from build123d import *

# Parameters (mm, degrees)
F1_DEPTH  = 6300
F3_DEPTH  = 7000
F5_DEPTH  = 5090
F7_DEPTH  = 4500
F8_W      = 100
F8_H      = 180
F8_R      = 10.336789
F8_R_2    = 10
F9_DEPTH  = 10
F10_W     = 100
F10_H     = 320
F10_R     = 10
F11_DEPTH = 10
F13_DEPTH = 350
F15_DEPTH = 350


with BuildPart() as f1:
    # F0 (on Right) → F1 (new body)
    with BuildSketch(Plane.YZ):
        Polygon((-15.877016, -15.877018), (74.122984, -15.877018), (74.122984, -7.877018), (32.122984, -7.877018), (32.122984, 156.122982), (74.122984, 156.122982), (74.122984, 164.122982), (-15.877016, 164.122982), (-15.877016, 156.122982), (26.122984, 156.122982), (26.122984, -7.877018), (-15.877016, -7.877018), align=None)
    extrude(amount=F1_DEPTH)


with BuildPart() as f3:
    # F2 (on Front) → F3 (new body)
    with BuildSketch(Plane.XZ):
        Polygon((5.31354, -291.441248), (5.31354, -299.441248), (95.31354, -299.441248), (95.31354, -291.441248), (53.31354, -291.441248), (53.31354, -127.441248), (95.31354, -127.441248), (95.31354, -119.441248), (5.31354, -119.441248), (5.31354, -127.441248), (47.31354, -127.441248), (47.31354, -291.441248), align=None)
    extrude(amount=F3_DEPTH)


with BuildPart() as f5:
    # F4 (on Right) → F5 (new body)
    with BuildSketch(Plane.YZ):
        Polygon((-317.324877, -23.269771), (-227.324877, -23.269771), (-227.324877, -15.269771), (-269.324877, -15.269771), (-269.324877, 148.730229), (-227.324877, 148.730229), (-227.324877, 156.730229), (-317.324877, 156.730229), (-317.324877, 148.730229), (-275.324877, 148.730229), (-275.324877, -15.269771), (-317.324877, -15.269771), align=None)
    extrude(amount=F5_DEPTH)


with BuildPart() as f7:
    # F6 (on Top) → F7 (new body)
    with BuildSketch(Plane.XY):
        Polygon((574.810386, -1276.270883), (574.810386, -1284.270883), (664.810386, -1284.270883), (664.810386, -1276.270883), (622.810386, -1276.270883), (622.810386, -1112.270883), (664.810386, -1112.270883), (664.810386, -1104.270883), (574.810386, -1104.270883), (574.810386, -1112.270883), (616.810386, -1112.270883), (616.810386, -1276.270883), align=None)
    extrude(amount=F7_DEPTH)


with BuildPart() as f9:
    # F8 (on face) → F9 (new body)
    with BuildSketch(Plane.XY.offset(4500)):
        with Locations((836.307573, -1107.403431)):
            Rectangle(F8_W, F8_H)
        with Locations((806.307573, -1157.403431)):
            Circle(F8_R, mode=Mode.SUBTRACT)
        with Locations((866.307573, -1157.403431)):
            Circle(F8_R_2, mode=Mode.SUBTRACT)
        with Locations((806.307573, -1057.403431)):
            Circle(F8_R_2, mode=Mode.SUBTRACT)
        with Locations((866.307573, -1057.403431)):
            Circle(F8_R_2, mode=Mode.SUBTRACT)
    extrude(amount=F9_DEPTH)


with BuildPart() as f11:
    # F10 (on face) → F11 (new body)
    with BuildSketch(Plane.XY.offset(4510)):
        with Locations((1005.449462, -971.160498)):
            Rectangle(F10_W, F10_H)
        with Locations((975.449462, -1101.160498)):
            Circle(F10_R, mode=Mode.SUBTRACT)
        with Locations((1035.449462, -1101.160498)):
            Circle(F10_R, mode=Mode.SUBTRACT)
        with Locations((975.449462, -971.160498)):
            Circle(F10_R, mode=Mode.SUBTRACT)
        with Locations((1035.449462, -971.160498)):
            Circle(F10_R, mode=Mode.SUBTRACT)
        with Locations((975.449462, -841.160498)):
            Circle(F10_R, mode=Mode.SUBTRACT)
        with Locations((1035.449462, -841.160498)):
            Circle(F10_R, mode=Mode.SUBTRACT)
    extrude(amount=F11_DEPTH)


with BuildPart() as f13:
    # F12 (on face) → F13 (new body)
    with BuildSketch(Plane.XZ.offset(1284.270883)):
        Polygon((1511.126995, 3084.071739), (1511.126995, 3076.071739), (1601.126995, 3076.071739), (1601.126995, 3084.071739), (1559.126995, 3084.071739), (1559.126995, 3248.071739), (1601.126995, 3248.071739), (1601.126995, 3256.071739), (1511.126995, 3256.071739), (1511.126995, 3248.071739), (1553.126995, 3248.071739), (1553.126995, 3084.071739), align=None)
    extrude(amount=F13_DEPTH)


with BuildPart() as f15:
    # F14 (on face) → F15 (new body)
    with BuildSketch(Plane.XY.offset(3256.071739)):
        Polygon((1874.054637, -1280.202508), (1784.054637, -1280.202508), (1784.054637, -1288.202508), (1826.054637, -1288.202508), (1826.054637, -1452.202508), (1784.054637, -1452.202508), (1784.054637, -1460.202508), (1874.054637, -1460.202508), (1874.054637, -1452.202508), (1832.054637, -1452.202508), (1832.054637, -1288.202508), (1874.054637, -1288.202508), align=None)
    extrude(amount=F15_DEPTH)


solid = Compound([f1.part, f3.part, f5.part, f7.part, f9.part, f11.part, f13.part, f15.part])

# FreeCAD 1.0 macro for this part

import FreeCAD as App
import Part
import Sketcher
from FreeCAD import Vector


def add_polygon(sketch, points):
    """Adds a closed chain of lines whose ends are joined by coincident constraints."""
    first, n = sketch.GeometryCount, len(points)
    for a, b in zip(points, points[1:] + points[:1]):
        sketch.addGeometry(Part.LineSegment(App.Vector(*a, 0), App.Vector(*b, 0)), False)
    for i in range(n):
        sketch.addConstraint(Sketcher.Constraint("Coincident", first + i, 2, first + (i + 1) % n, 1))

doc = App.newDocument("Part")
body = doc.addObject("PartDesign::Body", "Body")

# Sketch on YZ plane
sketch1 = body.newObject("Sketcher::SketchObject", "Sketch")
sketch1.AttachmentSupport = (doc.getObject("YZ_Plane"), [""])
sketch1.MapMode = "FlatFace"
add_polygon(sketch1, [(-16, -16), (74, -16), (74, -8), (32, -8), (32, 156), (74, 156), (74, 164), (-16, 164), (-16, 156), (26, 156), (26, -8), (-16, -8)])  # lines 0-11
sketch1.addConstraint([
    Sketcher.Constraint("Horizontal", 0),
    Sketcher.Constraint("Vertical", 1),
    Sketcher.Constraint("Horizontal", 2),
    Sketcher.Constraint("Vertical", 3),
    Sketcher.Constraint("Horizontal", 4),
    Sketcher.Constraint("Vertical", 5),
    Sketcher.Constraint("Horizontal", 6),
    Sketcher.Constraint("Vertical", 7),
    Sketcher.Constraint("Horizontal", 8),
    Sketcher.Constraint("Vertical", 9),
    Sketcher.Constraint("Horizontal", 10),
    Sketcher.Constraint("Vertical", 11),
    Sketcher.Constraint("Horizontal", 4, 2, 7, 2),
    Sketcher.Constraint("Horizontal", 2, 2, 9, 2),
    Sketcher.Constraint("Vertical", 1, 2, 4, 2),
    Sketcher.Constraint("Vertical", 7, 2, 10, 2),
    Sketcher.Constraint("Equal", 4, 8),
    Sketcher.Constraint("Equal", 1, 5),
    Sketcher.Constraint("DistanceX", 0, 1, 0, 2, 90.0),
    Sketcher.Constraint("DistanceX", 2, 2, 2, 1, 42.0),
    Sketcher.Constraint("DistanceY", 1, 1, 1, 2, 8.0),
    Sketcher.Constraint("DistanceY", 3, 1, 3, 2, 164.0),
    Sketcher.Constraint("DistanceY", -1, 1, 3, 2, 156.122982),
    Sketcher.Constraint("DistanceX", -1, 1, 0, 2, 74.122984),
])
pad1 = body.newObject("PartDesign::Pad", "Pad")
pad1.Profile = sketch1
pad1.Length = 6300
body2 = doc.addObject("PartDesign::Body", "Body001")

# Sketch on XZ plane
sketch2 = body2.newObject("Sketcher::SketchObject", "Sketch001")
sketch2.AttachmentSupport = (doc.getObject("XZ_Plane001"), [""])
sketch2.MapMode = "FlatFace"
add_polygon(sketch2, [(5, -291), (5, -299), (95, -299), (95, -291), (53, -291), (53, -127), (95, -127), (95, -119), (5, -119), (5, -127), (47, -127), (47, -291)])  # lines 0-11
sketch2.addConstraint([
    Sketcher.Constraint("Vertical", 0),
    Sketcher.Constraint("Horizontal", 1),
    Sketcher.Constraint("Vertical", 2),
    Sketcher.Constraint("Horizontal", 3),
    Sketcher.Constraint("Vertical", 4),
    Sketcher.Constraint("Horizontal", 5),
    Sketcher.Constraint("Vertical", 6),
    Sketcher.Constraint("Horizontal", 7),
    Sketcher.Constraint("Vertical", 8),
    Sketcher.Constraint("Horizontal", 9),
    Sketcher.Constraint("Vertical", 10),
    Sketcher.Constraint("Horizontal", 11),
    Sketcher.Constraint("Horizontal", 5, 2, 8, 2),
    Sketcher.Constraint("Horizontal", 3, 2, 10, 2),
    Sketcher.Constraint("Vertical", 2, 2, 5, 2),
    Sketcher.Constraint("Vertical", 0, 2, 7, 2),
    Sketcher.Constraint("Equal", 5, 9),
    Sketcher.Constraint("Equal", 2, 6),
    Sketcher.Constraint("DistanceX", 1, 1, 1, 2, 90.0),
    Sketcher.Constraint("DistanceX", 3, 2, 3, 1, 42.0),
    Sketcher.Constraint("DistanceY", 0, 2, 0, 1, 8.0),
    Sketcher.Constraint("DistanceY", 4, 1, 4, 2, 164.0),
    Sketcher.Constraint("DistanceX", -1, 1, 0, 2, 5.31354),
    Sketcher.Constraint("DistanceY", 4, 2, -1, 1, 127.441248),
])
pad2 = body2.newObject("PartDesign::Pad", "Pad001")
pad2.Profile = sketch2
pad2.Length = 7000
body3 = doc.addObject("PartDesign::Body", "Body002")

# Sketch on YZ plane
sketch3 = body3.newObject("Sketcher::SketchObject", "Sketch002")
sketch3.AttachmentSupport = (doc.getObject("YZ_Plane002"), [""])
sketch3.MapMode = "FlatFace"
add_polygon(sketch3, [(-317, -23), (-227, -23), (-227, -15), (-269, -15), (-269, 149), (-227, 149), (-227, 157), (-317, 157), (-317, 149), (-275, 149), (-275, -15), (-317, -15)])  # lines 0-11
sketch3.addConstraint([
    Sketcher.Constraint("Horizontal", 0),
    Sketcher.Constraint("Vertical", 1),
    Sketcher.Constraint("Horizontal", 2),
    Sketcher.Constraint("Vertical", 3),
    Sketcher.Constraint("Horizontal", 4),
    Sketcher.Constraint("Vertical", 5),
    Sketcher.Constraint("Horizontal", 6),
    Sketcher.Constraint("Vertical", 7),
    Sketcher.Constraint("Horizontal", 8),
    Sketcher.Constraint("Vertical", 9),
    Sketcher.Constraint("Horizontal", 10),
    Sketcher.Constraint("Vertical", 11),
    Sketcher.Constraint("Horizontal", 4, 2, 7, 2),
    Sketcher.Constraint("Horizontal", 2, 2, 9, 2),
    Sketcher.Constraint("Vertical", 1, 2, 4, 2),
    Sketcher.Constraint("Vertical", 7, 2, 10, 2),
    Sketcher.Constraint("Equal", 4, 8),
    Sketcher.Constraint("Equal", 1, 5),
    Sketcher.Constraint("DistanceX", 0, 1, 0, 2, 90.0),
    Sketcher.Constraint("DistanceX", 2, 2, 2, 1, 42.0),
    Sketcher.Constraint("DistanceY", 1, 1, 1, 2, 8.0),
    Sketcher.Constraint("DistanceY", 3, 1, 3, 2, 164.0),
    Sketcher.Constraint("DistanceY", 0, 2, -1, 1, 23.269771),
    Sketcher.Constraint("DistanceX", 0, 2, -1, 1, 227.324877),
])
pad3 = body3.newObject("PartDesign::Pad", "Pad002")
pad3.Profile = sketch3
pad3.Length = 5090
body4 = doc.addObject("PartDesign::Body", "Body003")

# Sketch on XY plane
sketch4 = body4.newObject("Sketcher::SketchObject", "Sketch003")
sketch4.AttachmentSupport = (doc.getObject("XY_Plane003"), [""])
sketch4.MapMode = "FlatFace"
add_polygon(sketch4, [(575, -1276), (575, -1284), (665, -1284), (665, -1276), (623, -1276), (623, -1112), (665, -1112), (665, -1104), (575, -1104), (575, -1112), (617, -1112), (617, -1276)])  # lines 0-11
sketch4.addConstraint([
    Sketcher.Constraint("Vertical", 0),
    Sketcher.Constraint("Horizontal", 1),
    Sketcher.Constraint("Vertical", 2),
    Sketcher.Constraint("Horizontal", 3),
    Sketcher.Constraint("Vertical", 4),
    Sketcher.Constraint("Horizontal", 5),
    Sketcher.Constraint("Vertical", 6),
    Sketcher.Constraint("Horizontal", 7),
    Sketcher.Constraint("Vertical", 8),
    Sketcher.Constraint("Horizontal", 9),
    Sketcher.Constraint("Vertical", 10),
    Sketcher.Constraint("Horizontal", 11),
    Sketcher.Constraint("Horizontal", 5, 2, 8, 2),
    Sketcher.Constraint("Horizontal", 3, 2, 10, 2),
    Sketcher.Constraint("Vertical", 2, 2, 5, 2),
    Sketcher.Constraint("Vertical", 0, 2, 7, 2),
    Sketcher.Constraint("Equal", 5, 9),
    Sketcher.Constraint("Equal", 2, 6),
    Sketcher.Constraint("DistanceX", 1, 1, 1, 2, 90.0),
    Sketcher.Constraint("DistanceX", 3, 2, 3, 1, 42.0),
    Sketcher.Constraint("DistanceY", 0, 2, 0, 1, 8.0),
    Sketcher.Constraint("DistanceY", 4, 1, 4, 2, 164.0),
    Sketcher.Constraint("DistanceX", -1, 1, 0, 2, 574.810386),
    Sketcher.Constraint("DistanceY", 0, 2, -1, 1, 1284.270883),
])
pad4 = body4.newObject("PartDesign::Pad", "Pad003")
pad4.Profile = sketch4
pad4.Length = 4500
body5 = doc.addObject("PartDesign::Body", "Body004")

# Sketch on XY plane
sketch5 = body5.newObject("Sketcher::SketchObject", "Sketch004")
sketch5.AttachmentSupport = (doc.getObject("XY_Plane004"), [""])
sketch5.MapMode = "FlatFace"
sketch5.AttachmentOffset = App.Placement(Vector(0, 0, 4500), App.Rotation())
add_polygon(sketch5, [(786, -1017), (786, -1197), (886, -1197), (886, -1017)])  # lines 0-3
sketch5.addGeometry(Part.Circle(Vector(806, -1157, 0), Vector(0, 0, 1), 10), False)  # 4
sketch5.addGeometry(Part.Circle(Vector(866, -1157, 0), Vector(0, 0, 1), 10), False)  # 5
sketch5.addGeometry(Part.Circle(Vector(806, -1057, 0), Vector(0, 0, 1), 10), False)  # 6
sketch5.addGeometry(Part.Circle(Vector(866, -1057, 0), Vector(0, 0, 1), 10), False)  # 7
sketch5.addConstraint([
    Sketcher.Constraint("Vertical", 0),
    Sketcher.Constraint("Horizontal", 1),
    Sketcher.Constraint("Vertical", 2),
    Sketcher.Constraint("Horizontal", 3),
    Sketcher.Constraint("Equal", 5, 6),
    Sketcher.Constraint("Equal", 6, 7),
    Sketcher.Constraint("Horizontal", 4, 3, 5, 3),
    Sketcher.Constraint("Horizontal", 6, 3, 7, 3),
    Sketcher.Constraint("Vertical", 4, 3, 6, 3),
    Sketcher.Constraint("Vertical", 5, 3, 7, 3),
    Sketcher.Constraint("Diameter", 5, 20.0),
    Sketcher.Constraint("DistanceX", 1, 1, 1, 2, 100.0),
    Sketcher.Constraint("DistanceY", 0, 2, 0, 1, 180.0),
    Sketcher.Constraint("DistanceX", 4, 3, 5, 3, 60.0),
    Sketcher.Constraint("DistanceY", 4, 3, 6, 3, 100.0),
    Sketcher.Constraint("DistanceX", 0, 2, 4, 3, 20.0),
    Sketcher.Constraint("DistanceY", 0, 2, 4, 3, 40.0),
    Sketcher.Constraint("Diameter", 4, 20.673578),
    Sketcher.Constraint("DistanceY", 4, 3, -1, 1, 1157.403431),
    Sketcher.Constraint("DistanceX", -1, 1, 4, 3, 806.307573),
])
pad5 = body5.newObject("PartDesign::Pad", "Pad004")
pad5.Profile = sketch5
pad5.Length = 10
body6 = doc.addObject("PartDesign::Body", "Body005")

# Sketch on XY plane
sketch6 = body6.newObject("Sketcher::SketchObject", "Sketch005")
sketch6.AttachmentSupport = (doc.getObject("XY_Plane005"), [""])
sketch6.MapMode = "FlatFace"
sketch6.AttachmentOffset = App.Placement(Vector(0, 0, 4510), App.Rotation())
add_polygon(sketch6, [(955, -811), (955, -1131), (1055, -1131), (1055, -811)])  # lines 0-3
sketch6.addGeometry(Part.Circle(Vector(975, -1101, 0), Vector(0, 0, 1), 10), False)  # 4
sketch6.addGeometry(Part.Circle(Vector(1035, -1101, 0), Vector(0, 0, 1), 10), False)  # 5
sketch6.addGeometry(Part.Circle(Vector(975, -971, 0), Vector(0, 0, 1), 10), False)  # 6
sketch6.addGeometry(Part.Circle(Vector(975, -841, 0), Vector(0, 0, 1), 10), False)  # 7
sketch6.addGeometry(Part.Circle(Vector(1035, -971, 0), Vector(0, 0, 1), 10), False)  # 8
sketch6.addGeometry(Part.Circle(Vector(1035, -841, 0), Vector(0, 0, 1), 10), False)  # 9
sketch6.addConstraint([
    Sketcher.Constraint("Vertical", 0),
    Sketcher.Constraint("Horizontal", 1),
    Sketcher.Constraint("Vertical", 2),
    Sketcher.Constraint("Horizontal", 3),
    Sketcher.Constraint("Equal", 4, 5),
    Sketcher.Constraint("Equal", 5, 6),
    Sketcher.Constraint("Equal", 6, 7),
    Sketcher.Constraint("Equal", 7, 8),
    Sketcher.Constraint("Equal", 8, 9),
    Sketcher.Constraint("Horizontal", 4, 3, 5, 3),
    Sketcher.Constraint("Horizontal", 6, 3, 8, 3),
    Sketcher.Constraint("Horizontal", 7, 3, 9, 3),
    Sketcher.Constraint("Vertical", 4, 3, 6, 3),
    Sketcher.Constraint("Vertical", 6, 3, 7, 3),
    Sketcher.Constraint("Vertical", 5, 3, 8, 3),
    Sketcher.Constraint("Vertical", 8, 3, 9, 3),
    Sketcher.Constraint("Diameter", 4, 20.0),
    Sketcher.Constraint("DistanceX", 1, 1, 1, 2, 100.0),
    Sketcher.Constraint("DistanceY", 0, 2, 0, 1, 320.0),
    Sketcher.Constraint("DistanceX", 4, 3, 5, 3, 60.0),
    Sketcher.Constraint("DistanceY", 4, 3, 6, 3, 130.0),
    Sketcher.Constraint("DistanceY", 6, 3, 7, 3, 130.0),
    Sketcher.Constraint("DistanceX", 0, 2, 4, 3, 20.0),
    Sketcher.Constraint("DistanceY", 0, 2, 4, 3, 30.0),
    Sketcher.Constraint("DistanceY", 4, 3, -1, 1, 1101.160498),
    Sketcher.Constraint("DistanceX", -1, 1, 4, 3, 975.449462),
])
pad6 = body6.newObject("PartDesign::Pad", "Pad005")
pad6.Profile = sketch6
pad6.Length = 10
body7 = doc.addObject("PartDesign::Body", "Body006")

# Sketch on XZ plane
sketch7 = body7.newObject("Sketcher::SketchObject", "Sketch006")
sketch7.AttachmentSupport = (doc.getObject("XZ_Plane006"), [""])
sketch7.MapMode = "FlatFace"
sketch7.AttachmentOffset = App.Placement(Vector(0, 0, 1284.270883), App.Rotation())
add_polygon(sketch7, [(1511, 3084), (1511, 3076), (1601, 3076), (1601, 3084), (1559, 3084), (1559, 3248), (1601, 3248), (1601, 3256), (1511, 3256), (1511, 3248), (1553, 3248), (1553, 3084)])  # lines 0-11
sketch7.addConstraint([
    Sketcher.Constraint("Vertical", 0),
    Sketcher.Constraint("Horizontal", 1),
    Sketcher.Constraint("Vertical", 2),
    Sketcher.Constraint("Horizontal", 3),
    Sketcher.Constraint("Vertical", 4),
    Sketcher.Constraint("Horizontal", 5),
    Sketcher.Constraint("Vertical", 6),
    Sketcher.Constraint("Horizontal", 7),
    Sketcher.Constraint("Vertical", 8),
    Sketcher.Constraint("Horizontal", 9),
    Sketcher.Constraint("Vertical", 10),
    Sketcher.Constraint("Horizontal", 11),
    Sketcher.Constraint("Horizontal", 5, 2, 8, 2),
    Sketcher.Constraint("Horizontal", 3, 2, 10, 2),
    Sketcher.Constraint("Vertical", 2, 2, 5, 2),
    Sketcher.Constraint("Vertical", 0, 2, 7, 2),
    Sketcher.Constraint("Equal", 5, 9),
    Sketcher.Constraint("Equal", 2, 6),
    Sketcher.Constraint("DistanceX", 1, 1, 1, 2, 90.0),
    Sketcher.Constraint("DistanceX", 3, 2, 3, 1, 42.0),
    Sketcher.Constraint("DistanceY", 0, 2, 0, 1, 8.0),
    Sketcher.Constraint("DistanceY", 4, 1, 4, 2, 164.0),
    Sketcher.Constraint("DistanceY", -1, 1, 0, 2, 3076.071739),
    Sketcher.Constraint("DistanceX", -1, 1, 0, 2, 1511.126995),
])
pad7 = body7.newObject("PartDesign::Pad", "Pad006")
pad7.Profile = sketch7
pad7.Length = 350
body8 = doc.addObject("PartDesign::Body", "Body007")

# Sketch on XY plane
sketch8 = body8.newObject("Sketcher::SketchObject", "Sketch007")
sketch8.AttachmentSupport = (doc.getObject("XY_Plane007"), [""])
sketch8.MapMode = "FlatFace"
sketch8.AttachmentOffset = App.Placement(Vector(0, 0, 3256.071739), App.Rotation())
add_polygon(sketch8, [(1874, -1280), (1784, -1280), (1784, -1288), (1826, -1288), (1826, -1452), (1784, -1452), (1784, -1460), (1874, -1460), (1874, -1452), (1832, -1452), (1832, -1288), (1874, -1288)])  # lines 0-11
sketch8.addConstraint([
    Sketcher.Constraint("Horizontal", 0),
    Sketcher.Constraint("Vertical", 1),
    Sketcher.Constraint("Horizontal", 2),
    Sketcher.Constraint("Vertical", 3),
    Sketcher.Constraint("Horizontal", 4),
    Sketcher.Constraint("Vertical", 5),
    Sketcher.Constraint("Horizontal", 6),
    Sketcher.Constraint("Vertical", 7),
    Sketcher.Constraint("Horizontal", 8),
    Sketcher.Constraint("Vertical", 9),
    Sketcher.Constraint("Horizontal", 10),
    Sketcher.Constraint("Vertical", 11),
    Sketcher.Constraint("Horizontal", 4, 2, 7, 2),
    Sketcher.Constraint("Horizontal", 2, 2, 9, 2),
    Sketcher.Constraint("Vertical", 1, 2, 4, 2),
    Sketcher.Constraint("Vertical", 7, 2, 10, 2),
    Sketcher.Constraint("Equal", 4, 8),
    Sketcher.Constraint("Equal", 1, 5),
    Sketcher.Constraint("DistanceX", 0, 2, 0, 1, 90.0),
    Sketcher.Constraint("DistanceX", 2, 1, 2, 2, 42.0),
    Sketcher.Constraint("DistanceY", 1, 2, 1, 1, 8.0),
    Sketcher.Constraint("DistanceY", 3, 2, 3, 1, 164.0),
    Sketcher.Constraint("DistanceY", 0, 2, -1, 1, 1280.202508),
    Sketcher.Constraint("DistanceX", -1, 1, 0, 2, 1784.054637),
])
pad8 = body8.newObject("PartDesign::Pad", "Pad007")
pad8.Profile = sketch8
pad8.Length = 350

doc.recompute()
